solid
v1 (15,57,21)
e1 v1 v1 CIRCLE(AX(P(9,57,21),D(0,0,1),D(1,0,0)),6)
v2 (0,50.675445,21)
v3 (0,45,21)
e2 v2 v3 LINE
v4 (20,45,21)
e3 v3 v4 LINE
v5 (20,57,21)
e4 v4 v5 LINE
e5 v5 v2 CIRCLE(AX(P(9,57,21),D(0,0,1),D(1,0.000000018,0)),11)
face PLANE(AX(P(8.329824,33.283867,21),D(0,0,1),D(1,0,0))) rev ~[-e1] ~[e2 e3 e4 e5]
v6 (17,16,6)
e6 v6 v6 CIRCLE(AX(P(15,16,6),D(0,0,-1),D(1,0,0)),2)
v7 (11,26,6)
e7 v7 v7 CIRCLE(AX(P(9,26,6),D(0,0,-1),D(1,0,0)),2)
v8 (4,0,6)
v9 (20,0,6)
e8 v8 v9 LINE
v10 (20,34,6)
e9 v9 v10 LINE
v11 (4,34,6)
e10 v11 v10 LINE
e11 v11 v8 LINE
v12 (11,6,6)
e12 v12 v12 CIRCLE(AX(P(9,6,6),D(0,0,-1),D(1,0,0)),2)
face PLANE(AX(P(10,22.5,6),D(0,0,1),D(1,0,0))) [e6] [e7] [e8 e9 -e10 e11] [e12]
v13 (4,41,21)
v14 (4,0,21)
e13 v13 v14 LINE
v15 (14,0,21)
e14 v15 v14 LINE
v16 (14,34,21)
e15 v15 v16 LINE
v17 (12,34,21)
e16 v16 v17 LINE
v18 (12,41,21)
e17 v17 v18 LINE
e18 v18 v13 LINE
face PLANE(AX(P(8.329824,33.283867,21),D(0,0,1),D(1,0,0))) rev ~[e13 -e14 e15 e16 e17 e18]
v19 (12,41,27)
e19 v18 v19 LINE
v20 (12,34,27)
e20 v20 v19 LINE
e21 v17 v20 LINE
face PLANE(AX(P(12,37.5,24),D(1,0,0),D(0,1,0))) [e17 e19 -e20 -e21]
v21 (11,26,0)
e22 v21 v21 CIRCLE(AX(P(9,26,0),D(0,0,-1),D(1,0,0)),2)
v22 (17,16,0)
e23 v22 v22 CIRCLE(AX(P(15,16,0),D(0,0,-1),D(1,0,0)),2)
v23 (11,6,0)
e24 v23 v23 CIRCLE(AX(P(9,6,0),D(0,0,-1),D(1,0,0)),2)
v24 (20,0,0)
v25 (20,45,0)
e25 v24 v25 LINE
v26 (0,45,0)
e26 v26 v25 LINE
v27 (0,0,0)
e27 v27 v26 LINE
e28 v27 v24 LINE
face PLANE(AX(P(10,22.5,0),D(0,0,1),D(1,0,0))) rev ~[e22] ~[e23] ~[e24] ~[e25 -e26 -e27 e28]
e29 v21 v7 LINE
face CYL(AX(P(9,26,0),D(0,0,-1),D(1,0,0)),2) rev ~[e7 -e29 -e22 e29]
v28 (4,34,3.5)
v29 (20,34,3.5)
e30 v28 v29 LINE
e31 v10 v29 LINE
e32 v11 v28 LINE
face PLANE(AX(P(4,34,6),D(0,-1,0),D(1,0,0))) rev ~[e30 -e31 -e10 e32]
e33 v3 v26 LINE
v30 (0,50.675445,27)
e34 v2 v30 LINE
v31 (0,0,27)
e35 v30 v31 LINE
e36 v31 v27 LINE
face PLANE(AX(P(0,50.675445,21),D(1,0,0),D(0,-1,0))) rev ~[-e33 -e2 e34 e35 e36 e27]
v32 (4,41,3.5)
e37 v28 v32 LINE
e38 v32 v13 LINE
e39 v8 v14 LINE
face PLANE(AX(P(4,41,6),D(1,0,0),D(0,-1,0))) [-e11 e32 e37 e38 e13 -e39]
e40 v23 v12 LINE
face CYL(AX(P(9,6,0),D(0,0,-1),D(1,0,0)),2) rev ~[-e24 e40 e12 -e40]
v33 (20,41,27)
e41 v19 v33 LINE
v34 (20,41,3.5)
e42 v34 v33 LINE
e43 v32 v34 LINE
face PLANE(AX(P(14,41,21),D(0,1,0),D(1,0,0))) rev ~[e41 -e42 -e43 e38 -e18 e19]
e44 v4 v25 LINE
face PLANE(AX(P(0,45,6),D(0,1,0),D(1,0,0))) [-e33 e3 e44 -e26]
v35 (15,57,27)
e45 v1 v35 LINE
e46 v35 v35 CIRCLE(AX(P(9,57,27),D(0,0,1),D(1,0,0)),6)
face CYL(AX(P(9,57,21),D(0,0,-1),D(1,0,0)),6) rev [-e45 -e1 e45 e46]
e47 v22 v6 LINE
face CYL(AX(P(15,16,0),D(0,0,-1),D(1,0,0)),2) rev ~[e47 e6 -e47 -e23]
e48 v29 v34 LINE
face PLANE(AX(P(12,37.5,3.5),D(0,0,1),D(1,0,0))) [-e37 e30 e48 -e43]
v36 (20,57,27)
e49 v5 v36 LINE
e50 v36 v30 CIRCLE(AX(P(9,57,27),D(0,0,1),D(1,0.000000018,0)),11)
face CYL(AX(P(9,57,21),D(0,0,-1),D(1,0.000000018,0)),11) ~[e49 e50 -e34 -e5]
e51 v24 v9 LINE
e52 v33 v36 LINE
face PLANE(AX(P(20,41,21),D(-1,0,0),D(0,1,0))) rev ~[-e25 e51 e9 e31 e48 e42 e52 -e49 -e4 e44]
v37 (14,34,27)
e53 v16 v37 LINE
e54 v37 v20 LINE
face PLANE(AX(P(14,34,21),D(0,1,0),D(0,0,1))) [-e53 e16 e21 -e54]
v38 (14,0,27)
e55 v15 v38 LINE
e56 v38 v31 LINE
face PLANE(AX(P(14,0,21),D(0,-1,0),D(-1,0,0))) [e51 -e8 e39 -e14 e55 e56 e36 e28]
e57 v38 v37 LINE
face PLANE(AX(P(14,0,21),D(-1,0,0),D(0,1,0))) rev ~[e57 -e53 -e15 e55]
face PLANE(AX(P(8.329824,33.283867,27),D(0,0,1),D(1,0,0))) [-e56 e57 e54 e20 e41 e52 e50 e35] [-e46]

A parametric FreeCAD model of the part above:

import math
import FreeCAD as App
import Part
import Sketcher
from FreeCAD import Vector
Q = App.Units.Quantity

doc = App.newDocument("Part")
body = doc.addObject("PartDesign::Body", "Body")

sketch1 = doc.addObject("Sketcher::SketchObject", "Sketch")
body.addObject(sketch1)
sketch1.AttachmentSupport = (doc.XY_Plane, [""])
sketch1.MapMode = "FlatFace"
sketch1.addGeometry([
    Part.LineSegment(Vector(0, 45, 0), Vector(0, 0, 0)),
    Part.LineSegment(Vector(0, 0, 0), Vector(20, 0, 0)),
    Part.LineSegment(Vector(20, 0, 0), Vector(20, 45, 0)),
    Part.LineSegment(Vector(20, 45, 0), Vector(0, 45, 0)),
], False)
sketch1.addConstraint([
    Sketcher.Constraint("Coincident", 0, 2, 1, 1),
    Sketcher.Constraint("Coincident", 1, 2, 2, 1),
    Sketcher.Constraint("Coincident", 2, 2, 3, 1),
    Sketcher.Constraint("Coincident", 3, 2, 0, 1),
    Sketcher.Constraint("Vertical", 0),
    Sketcher.Constraint("Horizontal", 1),
    Sketcher.Constraint("Vertical", 2),
    Sketcher.Constraint("Horizontal", 3),
    Sketcher.Constraint("Coincident", 0, 2, -1, 1),
    Sketcher.Constraint("DistanceX", 1, 1, 1, 2, Q("20 mm")),
    Sketcher.Constraint("DistanceY", 0, 2, 0, 1, Q("45 mm")),
])
pad1 = doc.addObject("PartDesign::Pad", "Pad")
body.addObject(pad1)
pad1.Profile = sketch1
pad1.Length = 6

sketch2 = doc.addObject("Sketcher::SketchObject", "Sketch001")
body.addObject(sketch2)
sketch2.AttachmentSupport = (doc.XY_Plane, [""])
sketch2.MapMode = "FlatFace"
sketch2.AttachmentOffset = App.Placement(Vector(0, 0, 6), App.Rotation())
sketch2.addGeometry([
    Part.LineSegment(Vector(0, 45, 0), Vector(0, 0, 0)),
    Part.LineSegment(Vector(0, 0, 0), Vector(4, 0, 0)),
    Part.LineSegment(Vector(4, 0, 0), Vector(4, 41, 0)),
    Part.LineSegment(Vector(4, 41, 0), Vector(20, 41, 0)),
    Part.LineSegment(Vector(20, 41, 0), Vector(20, 45, 0)),
    Part.LineSegment(Vector(20, 45, 0), Vector(0, 45, 0)),
], False)
sketch2.addConstraint([
    Sketcher.Constraint("Coincident", 0, 2, 1, 1),
    Sketcher.Constraint("Coincident", 1, 2, 2, 1),
    Sketcher.Constraint("Coincident", 2, 2, 3, 1),
    Sketcher.Constraint("Coincident", 3, 2, 4, 1),
    Sketcher.Constraint("Coincident", 4, 2, 5, 1),
    Sketcher.Constraint("Coincident", 5, 2, 0, 1),
    Sketcher.Constraint("Vertical", 0),
    Sketcher.Constraint("Horizontal", 1),
    Sketcher.Constraint("Vertical", 2),
    Sketcher.Constraint("Horizontal", 3),
    Sketcher.Constraint("Vertical", 4),
    Sketcher.Constraint("Horizontal", 5),
    Sketcher.Constraint("Coincident", 0, 2, -1, 1),
    Sketcher.Constraint("Equal", 1, 4),
    Sketcher.Constraint("DistanceX", 1, 1, 1, 2, Q("4 mm")),
    Sketcher.Constraint("DistanceX", 3, 1, 3, 2, Q("16 mm")),
    Sketcher.Constraint("DistanceY", 0, 2, 0, 1, Q("45 mm")),
])
pad2 = doc.addObject("PartDesign::Pad", "Pad001")
body.addObject(pad2)
pad2.Profile = sketch2
pad2.Length = 15

sketch3 = doc.addObject("Sketcher::SketchObject", "Sketch002")
body.addObject(sketch3)
sketch3.AttachmentSupport = (doc.XY_Plane, [""])
sketch3.MapMode = "FlatFace"
sketch3.AttachmentOffset = App.Placement(Vector(0, 0, 21), App.Rotation())
sketch3.addGeometry([
    Part.LineSegment(Vector(14, 0, 0), Vector(14, 41, 0)),
    Part.LineSegment(Vector(14, 41, 0), Vector(20, 41, 0)),
    Part.LineSegment(Vector(20, 41, 0), Vector(20, 57, 0)),
    Part.ArcOfCircle(Part.Circle(Vector(9, 57, 0), Vector(0, 0, 1), 11), math.radians(0), math.radians(215)),
    Part.LineSegment(Vector(0, 51, 0), Vector(0, 0, 0)),
    Part.LineSegment(Vector(0, 0, 0), Vector(14, 0, 0)),
    Part.Circle(Vector(9, 57, 0), Vector(0, 0, 1), 6),
], False)
sketch3.addConstraint([
    Sketcher.Constraint("Coincident", 0, 2, 1, 1),
    Sketcher.Constraint("Coincident", 1, 2, 2, 1),
    Sketcher.Constraint("Tangent", 2, 2, 3, 1),
    Sketcher.Constraint("Coincident", 3, 2, 4, 1),
    Sketcher.Constraint("Coincident", 4, 2, 5, 1),
    Sketcher.Constraint("Coincident", 5, 2, 0, 1),
    Sketcher.Constraint("Vertical", 0),
    Sketcher.Constraint("Horizontal", 1),
    Sketcher.Constraint("Vertical", 2),
    Sketcher.Constraint("Vertical", 4),
    Sketcher.Constraint("Horizontal", 5),
    Sketcher.Constraint("Coincident", 4, 2, -1, 1),
    Sketcher.Constraint("Coincident", 6, 3, 3, 3),
    Sketcher.Constraint("Diameter", 6, Q("12 mm")),
    Sketcher.Constraint("Radius", 3, Q("11 mm")),
    Sketcher.Constraint("DistanceX", 1, 1, 1, 2, Q("6 mm")),
    Sketcher.Constraint("DistanceX", 5, 1, 5, 2, Q("14 mm")),
    Sketcher.Constraint("DistanceY", 0, 1, 0, 2, Q("41 mm")),
    Sketcher.Constraint("DistanceY", 2, 1, 2, 2, Q("16 mm")),
])
pad3 = doc.addObject("PartDesign::Pad", "Pad002")
body.addObject(pad3)
pad3.Profile = sketch3
pad3.Length = 6

sketch4 = doc.addObject("Sketcher::SketchObject", "Sketch003")
body.addObject(sketch4)
sketch4.AttachmentSupport = (doc.XY_Plane, [""])
sketch4.MapMode = "FlatFace"
sketch4.addGeometry([
    Part.Circle(Vector(9, 6, 0), Vector(0, 0, 1), 2),
    Part.Circle(Vector(9, 26, 0), Vector(0, 0, 1), 2),
    Part.Circle(Vector(15, 16, 0), Vector(0, 0, 1), 2),
], False)
sketch4.addConstraint([
    Sketcher.Constraint("Equal", 0, 1),
    Sketcher.Constraint("Equal", 1, 2),
    Sketcher.Constraint("Vertical", 0, 3, 1, 3),
    Sketcher.Constraint("Diameter", 0, Q("4 mm")),
    Sketcher.Constraint("DistanceX", -1, 1, 0, 3, Q("9 mm")),
    Sketcher.Constraint("DistanceY", -1, 1, 0, 3, Q("6 mm")),
    Sketcher.Constraint("DistanceY", -1, 1, 1, 3, Q("26 mm")),
    Sketcher.Constraint("DistanceX", -1, 1, 2, 3, Q("15 mm")),
    Sketcher.Constraint("DistanceY", -1, 1, 2, 3, Q("16 mm")),
])
pocket1 = doc.addObject("PartDesign::Pocket", "Pocket")
body.addObject(pocket1)
pocket1.Profile = sketch4
pocket1.Length = 6
pocket1.Reversed = True

sketch5 = doc.addObject("Sketcher::SketchObject", "Sketch004")
body.addObject(sketch5)
sketch5.AttachmentSupport = (doc.YZ_Plane, [""])
sketch5.MapMode = "FlatFace"
sketch5.AttachmentOffset = App.Placement(Vector(0, 0, 14), App.Rotation())
sketch5.addGeometry([
    Part.LineSegment(Vector(34, 27, 0), Vector(34, 21, 0)),
    Part.LineSegment(Vector(34, 21, 0), Vector(41, 21, 0)),
    Part.LineSegment(Vector(41, 21, 0), Vector(41, 27, 0)),
    Part.LineSegment(Vector(41, 27, 0), Vector(34, 27, 0)),
], False)
sketch5.addConstraint([
    Sketcher.Constraint("Coincident", 0, 2, 1, 1),
    Sketcher.Constraint("Coincident", 1, 2, 2, 1),
    Sketcher.Constraint("Coincident", 2, 2, 3, 1),
    Sketcher.Constraint("Coincident", 3, 2, 0, 1),
    Sketcher.Constraint("Vertical", 0),
    Sketcher.Constraint("Horizontal", 1),
    Sketcher.Constraint("Vertical", 2),
    Sketcher.Constraint("Horizontal", 3),
    Sketcher.Constraint("DistanceX", 1, 1, 1, 2, Q("7 mm")),
    Sketcher.Constraint("DistanceY", 0, 2, 0, 1, Q("6 mm")),
    Sketcher.Constraint("DistanceX", -1, 1, 0, 2, Q("34 mm")),
    Sketcher.Constraint("DistanceY", -1, 1, 0, 2, Q("21 mm")),
])
pocket2 = doc.addObject("PartDesign::Pocket", "Pocket001")
body.addObject(pocket2)
pocket2.Profile = sketch5
pocket2.Length = 2

sketch6 = doc.addObject("Sketcher::SketchObject", "Sketch005")
body.addObject(sketch6)
sketch6.AttachmentSupport = (doc.XY_Plane, [""])
sketch6.MapMode = "FlatFace"
sketch6.AttachmentOffset = App.Placement(Vector(0, 0, 6), App.Rotation())
sketch6.addGeometry([
    Part.LineSegment(Vector(4, 41, 0), Vector(4, 34, 0)),
    Part.LineSegment(Vector(4, 34, 0), Vector(20, 34, 0)),
    Part.LineSegment(Vector(20, 34, 0), Vector(20, 41, 0)),
    Part.LineSegment(Vector(20, 41, 0), Vector(4, 41, 0)),
], False)
sketch6.addConstraint([
    Sketcher.Constraint("Coincident", 0, 2, 1, 1),
    Sketcher.Constraint("Coincident", 1, 2, 2, 1),
    Sketcher.Constraint("Coincident", 2, 2, 3, 1),
    Sketcher.Constraint("Coincident", 3, 2, 0, 1),
    Sketcher.Constraint("Vertical", 0),
    Sketcher.Constraint("Horizontal", 1),
    Sketcher.Constraint("Vertical", 2),
    Sketcher.Constraint("Horizontal", 3),
    Sketcher.Constraint("DistanceX", 1, 1, 1, 2, Q("16 mm")),
    Sketcher.Constraint("DistanceY", 0, 2, 0, 1, Q("7 mm")),
    Sketcher.Constraint("DistanceX", -1, 1, 0, 2, Q("4 mm")),
    Sketcher.Constraint("DistanceY", -1, 1, 0, 2, Q("34 mm")),
])
pocket3 = doc.addObject("PartDesign::Pocket", "Pocket002")
body.addObject(pocket3)
pocket3.Profile = sketch6
pocket3.Length = 2.5

doc.recompute()
